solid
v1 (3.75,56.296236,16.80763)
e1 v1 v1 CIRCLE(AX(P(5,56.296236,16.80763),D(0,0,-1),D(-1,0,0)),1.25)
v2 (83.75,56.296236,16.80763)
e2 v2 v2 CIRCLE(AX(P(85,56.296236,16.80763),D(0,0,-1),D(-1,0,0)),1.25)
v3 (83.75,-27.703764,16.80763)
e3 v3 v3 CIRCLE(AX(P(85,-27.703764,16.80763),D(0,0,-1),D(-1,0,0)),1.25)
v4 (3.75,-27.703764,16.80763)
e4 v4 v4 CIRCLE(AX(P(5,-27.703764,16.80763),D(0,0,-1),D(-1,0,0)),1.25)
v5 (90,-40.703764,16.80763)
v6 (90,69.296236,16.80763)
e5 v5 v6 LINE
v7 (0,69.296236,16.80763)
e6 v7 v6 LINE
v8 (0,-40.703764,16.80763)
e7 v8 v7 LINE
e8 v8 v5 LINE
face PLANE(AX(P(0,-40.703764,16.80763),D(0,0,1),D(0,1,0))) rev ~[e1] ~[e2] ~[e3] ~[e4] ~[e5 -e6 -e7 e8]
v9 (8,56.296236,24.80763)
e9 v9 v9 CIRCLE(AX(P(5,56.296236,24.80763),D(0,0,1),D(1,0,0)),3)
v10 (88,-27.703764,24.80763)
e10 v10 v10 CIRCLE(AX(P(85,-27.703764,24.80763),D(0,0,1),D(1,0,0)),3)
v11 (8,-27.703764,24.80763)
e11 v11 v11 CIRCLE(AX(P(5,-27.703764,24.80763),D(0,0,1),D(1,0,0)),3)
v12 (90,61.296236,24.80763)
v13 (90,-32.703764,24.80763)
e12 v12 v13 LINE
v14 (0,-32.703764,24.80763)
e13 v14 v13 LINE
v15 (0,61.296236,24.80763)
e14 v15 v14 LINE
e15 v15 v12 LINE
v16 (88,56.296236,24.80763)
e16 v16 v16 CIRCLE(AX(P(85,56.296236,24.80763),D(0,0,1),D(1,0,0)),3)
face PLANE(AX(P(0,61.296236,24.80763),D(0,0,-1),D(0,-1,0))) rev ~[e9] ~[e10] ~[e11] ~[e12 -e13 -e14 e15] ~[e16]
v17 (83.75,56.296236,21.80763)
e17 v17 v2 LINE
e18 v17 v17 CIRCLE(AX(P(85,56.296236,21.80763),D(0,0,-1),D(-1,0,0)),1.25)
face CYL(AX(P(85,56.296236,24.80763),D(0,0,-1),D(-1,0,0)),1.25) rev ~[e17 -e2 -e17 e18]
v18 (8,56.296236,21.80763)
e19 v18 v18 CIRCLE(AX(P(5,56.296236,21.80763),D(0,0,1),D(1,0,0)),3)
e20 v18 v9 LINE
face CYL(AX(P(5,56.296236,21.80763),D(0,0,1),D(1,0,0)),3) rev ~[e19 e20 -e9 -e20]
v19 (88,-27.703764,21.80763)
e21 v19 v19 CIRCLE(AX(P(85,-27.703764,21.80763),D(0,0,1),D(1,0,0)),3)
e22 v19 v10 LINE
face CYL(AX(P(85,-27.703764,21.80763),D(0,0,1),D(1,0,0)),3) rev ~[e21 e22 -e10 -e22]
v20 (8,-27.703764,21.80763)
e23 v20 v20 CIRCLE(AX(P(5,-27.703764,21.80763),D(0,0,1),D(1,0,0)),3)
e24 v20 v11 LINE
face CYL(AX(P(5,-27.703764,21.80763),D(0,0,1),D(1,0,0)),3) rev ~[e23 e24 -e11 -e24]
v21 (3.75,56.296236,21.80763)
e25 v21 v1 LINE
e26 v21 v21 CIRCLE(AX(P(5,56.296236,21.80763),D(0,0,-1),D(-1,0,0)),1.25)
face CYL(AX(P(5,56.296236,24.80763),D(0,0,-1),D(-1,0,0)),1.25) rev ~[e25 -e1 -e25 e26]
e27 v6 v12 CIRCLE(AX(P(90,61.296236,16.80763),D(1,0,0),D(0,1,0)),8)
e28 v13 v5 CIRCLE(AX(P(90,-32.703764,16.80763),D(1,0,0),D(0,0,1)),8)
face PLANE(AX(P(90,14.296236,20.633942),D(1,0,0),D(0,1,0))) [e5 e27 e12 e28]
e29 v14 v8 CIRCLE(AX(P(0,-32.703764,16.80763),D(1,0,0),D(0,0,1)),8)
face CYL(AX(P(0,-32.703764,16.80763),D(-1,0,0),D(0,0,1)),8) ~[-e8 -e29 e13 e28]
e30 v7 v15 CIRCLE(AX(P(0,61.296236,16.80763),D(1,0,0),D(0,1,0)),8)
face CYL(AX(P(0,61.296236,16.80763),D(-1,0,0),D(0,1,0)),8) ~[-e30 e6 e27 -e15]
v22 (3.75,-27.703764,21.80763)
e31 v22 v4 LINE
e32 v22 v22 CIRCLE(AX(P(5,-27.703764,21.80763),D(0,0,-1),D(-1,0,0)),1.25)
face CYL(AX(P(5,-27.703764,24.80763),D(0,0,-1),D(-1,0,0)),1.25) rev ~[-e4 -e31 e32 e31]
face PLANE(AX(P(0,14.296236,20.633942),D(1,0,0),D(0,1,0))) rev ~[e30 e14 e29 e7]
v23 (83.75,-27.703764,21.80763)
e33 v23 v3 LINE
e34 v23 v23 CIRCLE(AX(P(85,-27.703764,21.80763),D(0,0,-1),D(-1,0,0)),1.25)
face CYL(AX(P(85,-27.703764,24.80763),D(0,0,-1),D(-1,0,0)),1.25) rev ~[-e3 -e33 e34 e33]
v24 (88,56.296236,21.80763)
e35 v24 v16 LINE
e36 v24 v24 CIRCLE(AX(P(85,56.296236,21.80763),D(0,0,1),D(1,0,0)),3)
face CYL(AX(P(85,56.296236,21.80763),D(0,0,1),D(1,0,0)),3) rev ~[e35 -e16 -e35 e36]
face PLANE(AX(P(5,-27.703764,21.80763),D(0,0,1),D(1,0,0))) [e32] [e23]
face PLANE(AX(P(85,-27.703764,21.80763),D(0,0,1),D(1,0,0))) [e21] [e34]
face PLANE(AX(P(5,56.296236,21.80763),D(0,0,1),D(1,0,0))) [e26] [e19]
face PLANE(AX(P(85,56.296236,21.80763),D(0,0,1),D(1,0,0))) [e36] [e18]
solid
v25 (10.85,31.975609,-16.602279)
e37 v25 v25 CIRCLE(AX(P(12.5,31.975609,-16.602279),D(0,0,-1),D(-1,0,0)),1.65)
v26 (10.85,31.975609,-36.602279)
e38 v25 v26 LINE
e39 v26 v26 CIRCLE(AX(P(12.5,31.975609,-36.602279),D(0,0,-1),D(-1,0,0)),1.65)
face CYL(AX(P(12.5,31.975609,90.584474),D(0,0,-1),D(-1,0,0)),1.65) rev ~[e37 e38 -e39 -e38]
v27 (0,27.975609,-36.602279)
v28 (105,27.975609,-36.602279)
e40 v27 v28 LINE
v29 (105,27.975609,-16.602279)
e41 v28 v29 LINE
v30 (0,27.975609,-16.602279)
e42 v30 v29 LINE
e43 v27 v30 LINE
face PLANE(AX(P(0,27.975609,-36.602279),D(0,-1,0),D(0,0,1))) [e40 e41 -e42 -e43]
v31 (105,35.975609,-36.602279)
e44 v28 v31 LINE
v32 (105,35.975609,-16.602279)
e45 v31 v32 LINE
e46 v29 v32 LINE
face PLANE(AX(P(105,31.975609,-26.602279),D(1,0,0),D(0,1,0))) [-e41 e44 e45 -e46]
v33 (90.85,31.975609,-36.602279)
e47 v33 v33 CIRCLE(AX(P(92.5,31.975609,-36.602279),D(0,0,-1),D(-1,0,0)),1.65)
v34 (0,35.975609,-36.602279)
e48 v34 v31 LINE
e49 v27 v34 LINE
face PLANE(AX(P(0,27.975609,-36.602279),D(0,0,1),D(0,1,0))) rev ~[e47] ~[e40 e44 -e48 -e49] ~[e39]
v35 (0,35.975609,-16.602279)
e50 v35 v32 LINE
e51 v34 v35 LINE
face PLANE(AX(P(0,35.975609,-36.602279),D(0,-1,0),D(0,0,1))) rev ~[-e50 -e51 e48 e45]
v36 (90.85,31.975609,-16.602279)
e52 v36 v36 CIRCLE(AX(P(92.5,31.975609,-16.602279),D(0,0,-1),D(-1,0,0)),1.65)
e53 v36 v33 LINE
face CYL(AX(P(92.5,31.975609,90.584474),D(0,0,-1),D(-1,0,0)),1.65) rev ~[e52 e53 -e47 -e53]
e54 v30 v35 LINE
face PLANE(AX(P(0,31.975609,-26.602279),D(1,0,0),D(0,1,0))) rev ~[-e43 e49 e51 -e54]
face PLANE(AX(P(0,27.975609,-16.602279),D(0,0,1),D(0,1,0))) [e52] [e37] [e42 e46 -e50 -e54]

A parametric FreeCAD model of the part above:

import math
import FreeCAD as App
import Part
import Sketcher

V = App.Vector
Q = App.Units.Quantity


def add_polygon(sketch, points):
    """Adds a closed chain of lines whose ends are joined by coincident constraints."""
    first, n = sketch.GeometryCount, len(points)
    for a, b in zip(points, points[1:] + points[:1]):
        sketch.addGeometry(Part.LineSegment(App.Vector(*a, 0), App.Vector(*b, 0)), False)
    for i in range(n):
        sketch.addConstraint(Sketcher.Constraint("Coincident", first + i, 2, first + (i + 1) % n, 1))

doc = App.newDocument("Part")
body = doc.addObject("PartDesign::Body", "Body")

sketch1 = body.newObject("Sketcher::SketchObject", "Sketch")
sketch1.AttachmentSupport = (doc.getObject("YZ_Plane"), [""])
sketch1.MapMode = "FlatFace"
sketch1.addGeometry([
    Part.LineSegment(V(61.296236, 24.80763, 0), V(-32.703764, 24.80763, 0)),
    Part.ArcOfCircle(Part.Circle(V(-32.703764, 16.80763, 0), V(0, 0, 1), 8), math.radians(90), math.radians(180)),
    Part.LineSegment(V(-40.703764, 16.80763, 0), V(69.296236, 16.80763, 0)),
    Part.ArcOfCircle(Part.Circle(V(61.296236, 16.80763, 0), V(0, 0, 1), 8), math.radians(0), math.radians(90)),
], False)
sketch1.addConstraint([
    Sketcher.Constraint("Tangent", 0, 2, 1, 1),
    Sketcher.Constraint("Coincident", 1, 2, 2, 1),
    Sketcher.Constraint("Coincident", 2, 2, 3, 1),
    Sketcher.Constraint("Tangent", 3, 2, 0, 1),
    Sketcher.Constraint("Horizontal", 0),
    Sketcher.Constraint("Horizontal", 2),
    Sketcher.Constraint("Equal", 1, 3),
    Sketcher.Constraint("Horizontal", 3, 3, 1, 2),
    Sketcher.Constraint("Radius", 1, Q("8 mm")),
    Sketcher.Constraint("DistanceX", 0, 2, 0, 1, Q("94 mm")),
    Sketcher.Constraint("DistanceY", -1, 1, 1, 3, Q("16.80763 mm")),
    Sketcher.Constraint("DistanceX", 1, 3, -1, 1, Q("32.703764 mm")),
])
pad1 = body.newObject("PartDesign::Pad", "Pad")
pad1.Profile = sketch1
pad1.Length = 90

sketch2 = body.newObject("Sketcher::SketchObject", "Sketch001")
sketch2.AttachmentSupport = (doc.getObject("XY_Plane"), [""])
sketch2.MapMode = "FlatFace"
sketch2.AttachmentOffset = App.Placement(V(0, 0, 24.80763), App.Rotation())
sketch2.addGeometry([
    Part.Circle(V(5, 56.296236, 0), V(0, 0, 1), 1.25),
    Part.Circle(V(85, 56.296236, 0), V(0, 0, 1), 1.25),
    Part.Circle(V(85, -27.703764, 0), V(0, 0, 1), 1.25),
    Part.Circle(V(5, -27.703764, 0), V(0, 0, 1), 1.25),
], False)
sketch2.addConstraint([
    Sketcher.Constraint("Equal", 0, 1),
    Sketcher.Constraint("Equal", 1, 2),
    Sketcher.Constraint("Equal", 2, 3),
    Sketcher.Constraint("Horizontal", 0, 3, 1, 3),
    Sketcher.Constraint("Horizontal", 2, 3, 3, 3),
    Sketcher.Constraint("Vertical", 1, 3, 2, 3),
    Sketcher.Constraint("Vertical", 0, 3, 3, 3),
    Sketcher.Constraint("Diameter", 0, Q("2.5 mm")),
    Sketcher.Constraint("DistanceX", -1, 1, 0, 3, Q("5 mm")),
    Sketcher.Constraint("DistanceX", -1, 1, 1, 3, Q("85 mm")),
    Sketcher.Constraint("DistanceY", 2, 3, 1, 3, Q("84 mm")),
    Sketcher.Constraint("DistanceY", -1, 1, 0, 3, Q("56.296236 mm")),
])
doc.recompute()
hole = body.newObject("PartDesign::Hole", "Hole")
hole.Profile = sketch2
hole.ThreadType = "None"
hole.Diameter = 2.5
hole.DepthType = "ThroughAll"
hole.HoleCutType = "Counterbore"
hole.HoleCutDiameter = 6
hole.HoleCutDepth = 3
body2 = doc.addObject("PartDesign::Body", "Body001")

sketch3 = body2.newObject("Sketcher::SketchObject", "Sketch002")
sketch3.AttachmentSupport = (doc.getObject("YZ_Plane001"), [""])
sketch3.MapMode = "FlatFace"
add_polygon(sketch3, [(27.975609, -16.602279), (27.975609, -36.602279), (35.975609, -36.602279), (35.975609, -16.602279)])
sketch3.addConstraint([
    Sketcher.Constraint("Vertical", 0),
    Sketcher.Constraint("Horizontal", 1),
    Sketcher.Constraint("Vertical", 2),
    Sketcher.Constraint("Horizontal", 3),
    Sketcher.Constraint("DistanceX", 1, 1, 1, 2, Q("8 mm")),
    Sketcher.Constraint("DistanceY", 0, 2, 0, 1, Q("20 mm")),
    Sketcher.Constraint("DistanceX", -1, 1, 0, 2, Q("27.975609 mm")),
    Sketcher.Constraint("DistanceY", 0, 2, -1, 1, Q("36.602279 mm")),
])
pad2 = body2.newObject("PartDesign::Pad", "Pad001")
pad2.Profile = sketch3
pad2.Length = 105

sketch4 = body2.newObject("Sketcher::SketchObject", "Sketch003")
sketch4.AttachmentSupport = (doc.getObject("XY_Plane001"), [""])
sketch4.MapMode = "FlatFace"
sketch4.AttachmentOffset = App.Placement(V(0, 0, -16.602279), App.Rotation())
sketch4.addGeometry([
    Part.Circle(V(12.5, 31.975609, 0), V(0, 0, 1), 1.65),
    Part.Circle(V(92.5, 31.975609, 0), V(0, 0, 1), 1.65),
], False)
sketch4.addConstraint([
    Sketcher.Constraint("Equal", 0, 1),
    Sketcher.Constraint("Horizontal", 0, 3, 1, 3),
    Sketcher.Constraint("Diameter", 0, Q("3.3 mm")),
    Sketcher.Constraint("DistanceX", 0, 3, 1, 3, Q("80 mm")),
    Sketcher.Constraint("DistanceX", -1, 1, 0, 3, Q("12.5 mm")),
    Sketcher.Constraint("DistanceY", -1, 1, 0, 3, Q("31.975609 mm")),
])
doc.recompute()
hole2 = body2.newObject("PartDesign::Hole", "Hole001")
hole2.Profile = sketch4
hole2.ThreadType = "None"
hole2.Diameter = 3.3
hole2.DepthType = "ThroughAll"

doc.recompute()
